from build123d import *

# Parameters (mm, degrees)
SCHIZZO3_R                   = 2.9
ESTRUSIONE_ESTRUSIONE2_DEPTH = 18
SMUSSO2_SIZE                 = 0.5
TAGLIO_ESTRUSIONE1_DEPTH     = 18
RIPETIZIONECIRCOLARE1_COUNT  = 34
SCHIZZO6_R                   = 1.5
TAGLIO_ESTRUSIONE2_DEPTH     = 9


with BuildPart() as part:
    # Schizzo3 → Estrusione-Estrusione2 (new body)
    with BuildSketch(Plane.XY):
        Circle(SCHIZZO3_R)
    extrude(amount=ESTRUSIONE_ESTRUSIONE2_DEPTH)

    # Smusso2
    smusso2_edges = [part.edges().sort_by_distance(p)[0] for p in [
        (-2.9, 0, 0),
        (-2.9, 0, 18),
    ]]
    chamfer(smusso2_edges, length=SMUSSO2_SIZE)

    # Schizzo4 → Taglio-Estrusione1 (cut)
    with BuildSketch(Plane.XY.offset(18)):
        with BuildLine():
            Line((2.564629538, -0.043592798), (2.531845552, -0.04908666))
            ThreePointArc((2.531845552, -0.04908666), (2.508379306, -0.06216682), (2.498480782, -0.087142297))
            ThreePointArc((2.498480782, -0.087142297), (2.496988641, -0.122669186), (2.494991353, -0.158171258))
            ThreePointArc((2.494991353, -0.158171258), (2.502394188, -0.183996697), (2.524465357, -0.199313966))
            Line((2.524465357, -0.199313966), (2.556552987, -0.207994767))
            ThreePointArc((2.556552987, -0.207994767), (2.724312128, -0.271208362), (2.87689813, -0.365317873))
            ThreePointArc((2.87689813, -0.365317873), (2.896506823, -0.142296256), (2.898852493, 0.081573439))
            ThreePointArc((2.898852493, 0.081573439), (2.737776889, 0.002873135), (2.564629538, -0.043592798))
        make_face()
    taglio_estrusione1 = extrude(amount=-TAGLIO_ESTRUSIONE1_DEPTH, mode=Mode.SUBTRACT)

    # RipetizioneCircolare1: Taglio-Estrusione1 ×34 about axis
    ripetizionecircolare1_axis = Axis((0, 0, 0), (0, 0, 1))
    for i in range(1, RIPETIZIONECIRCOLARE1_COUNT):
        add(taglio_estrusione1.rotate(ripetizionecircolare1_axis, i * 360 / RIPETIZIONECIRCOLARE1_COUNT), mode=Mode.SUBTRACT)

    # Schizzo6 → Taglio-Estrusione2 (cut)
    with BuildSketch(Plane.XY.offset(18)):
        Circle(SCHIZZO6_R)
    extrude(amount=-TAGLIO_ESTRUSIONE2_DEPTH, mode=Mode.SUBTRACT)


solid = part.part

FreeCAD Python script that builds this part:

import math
import FreeCAD as App
import Part
import Sketcher
from FreeCAD import Vector


def edges_at(feature, points):
    """Names of the edges that pass closest to the given points."""
    edges = feature.Shape.Edges
    near = lambda p: min(range(len(edges)), key=lambda i: edges[i].distToShape(Part.Vertex(*p))[0])
    return sorted({f"Edge{near(p) + 1}" for p in points})

doc = App.newDocument("Part")
params = doc.addObject("Spreadsheet::Sheet", "Params")
for row, (alias, value) in enumerate([
    ("sketch1_diameter", "5.8 mm"),
    ("pad1_length", "18 mm"),
    ("chamfer_size", "0.5 mm"),
    ("sketch2_radius", "2.9 mm"),
    ("sketch2_radius2", "0.04 mm"),
    ("pocket1_length", "18 mm"),
    ("sketch3_diameter", "3 mm"),
    ("pocket2_length", "9 mm"),
], start=1):
    params.set(f"A{row}", alias)
    params.set(f"B{row}", "=" + value)
    params.setAlias(f"B{row}", alias)

body = doc.addObject("PartDesign::Body", "Body")

sketch1 = body.newObject("Sketcher::SketchObject", "Sketch")
sketch1.AttachmentSupport = (doc.getObject("XY_Plane"), [""])
sketch1.MapMode = "FlatFace"
sketch1.addGeometry(Part.Circle(Vector(0, 0, 0), Vector(0, 0, 1), 2.9), False)
sketch1.addConstraint(Sketcher.Constraint("Coincident", 0, 3, -1, 1))
sketch1.addConstraint(Sketcher.Constraint("Diameter", 0, 5.8))
sketch1.setExpression("Constraints[1]", "Params.sketch1_diameter")
pad1 = body.newObject("PartDesign::Pad", "Pad")
pad1.Profile = sketch1
pad1.setExpression("Length", "Params.pad1_length")
doc.recompute()

chamfer = body.newObject("PartDesign::Chamfer", "Chamfer")
chamfer.Base = (pad1, edges_at(pad1, [(-2.9, 0, 0), (-2.9, 0, 18)]))
chamfer.setExpression("Size", "Params.chamfer_size")

sketch2 = body.newObject("Sketcher::SketchObject", "Sketch001")
sketch2.AttachmentSupport = (doc.getObject("XY_Plane"), [""])
sketch2.MapMode = "FlatFace"
sketch2.AttachmentOffset = App.Placement(Vector(0, 0, 18), App.Rotation())
sketch2.addGeometry(Part.LineSegment(Vector(2.565, -0.044, 0), Vector(2.532, -0.049, 0)), False)
sketch2.addGeometry(Part.ArcOfCircle(Part.Circle(Vector(2.538, -0.089, 0), Vector(0, 0, 1), 0.04), math.radians(100), math.radians(178)), False)
sketch2.addGeometry(Part.ArcOfCircle(Part.Circle(Vector(0, 0, 0), Vector(0, 0, 1), 2.5), math.radians(-3.63), math.radians(-2)), False)
sketch2.addGeometry(Part.ArcOfCircle(Part.Circle(Vector(2.535, -0.161, 0), Vector(0, 0, 1), 0.04), math.radians(176), math.radians(255)), False)
sketch2.addGeometry(Part.LineSegment(Vector(2.524, -0.199, 0), Vector(2.557, -0.208, 0)), False)
sketch2.addGeometry(Part.ArcOfCircle(Part.Circle(Vector(2.313, -1.109, 0), Vector(0, 0, 1), 0.934), math.radians(53), math.radians(75)), False)
sketch2.addGeometry(Part.ArcOfCircle(Part.Circle(Vector(0, 0, 0), Vector(0, 0, 1), 2.9), math.radians(-7.24), math.radians(1.61)), False)
sketch2.addGeometry(Part.ArcOfCircle(Part.Circle(Vector(2.41, 0.877, 0), Vector(0, 0, 1), 0.934), math.radians(-80), math.radians(-58)), False)
sketch2.addConstraint(Sketcher.Constraint("Tangent", 0, 2, 1, 1))
sketch2.addConstraint(Sketcher.Constraint("Tangent", 1, 2, 2, 2))
sketch2.addConstraint(Sketcher.Constraint("Tangent", 2, 1, 3, 1))
sketch2.addConstraint(Sketcher.Constraint("Tangent", 3, 2, 4, 1))
sketch2.addConstraint(Sketcher.Constraint("Tangent", 4, 2, 5, 2))
sketch2.addConstraint(Sketcher.Constraint("Coincident", 5, 1, 6, 1))
sketch2.addConstraint(Sketcher.Constraint("Coincident", 6, 2, 7, 2))
sketch2.addConstraint(Sketcher.Constraint("Tangent", 7, 1, 0, 1))
sketch2.addConstraint(Sketcher.Constraint("Coincident", 2, 3, -1, 1))
sketch2.addConstraint(Sketcher.Constraint("Coincident", 6, 3, -1, 1))
sketch2.addConstraint(Sketcher.Constraint("Equal", 1, 3))
sketch2.addConstraint(Sketcher.Constraint("Equal", 5, 7))
sketch2.addConstraint(Sketcher.Constraint("Equal", 0, 4))
sketch2.addConstraint(Sketcher.Constraint("Radius", 6, 2.9))
sketch2.addConstraint(Sketcher.Constraint("Radius", 1, 0.04))
sketch2.addConstraint(Sketcher.Constraint("Radius", 2, 2.499991))
sketch2.addConstraint(Sketcher.Constraint("Radius", 5, 0.933715))
sketch2.addConstraint(Sketcher.Constraint("DistanceY", 3, 3, -1, 1, 0.160702))
sketch2.addConstraint(Sketcher.Constraint("DistanceX", -1, 1, 5, 1, 2.876898))
sketch2.addConstraint(Sketcher.Constraint("DistanceX", 7, 3, 3, 3, 0.1246))
sketch2.addConstraint(Sketcher.Constraint("Distance", 0, 0.033241))
sketch2.addConstraint(Sketcher.Constraint("DistanceY", -1, 1, 7, 3, 0.877282))
sketch2.setExpression("Constraints[13]", "Params.sketch2_radius")
sketch2.setExpression("Constraints[14]", "Params.sketch2_radius2")
pocket1 = body.newObject("PartDesign::Pocket", "Pocket")
pocket1.Profile = sketch2
pocket1.setExpression("Length", "Params.pocket1_length")
doc.recompute()

polarpattern = body.newObject("PartDesign::PolarPattern", "PolarPattern")
polarpattern.Originals = [pocket1]
polarpattern.Axis = (doc.getObject("Z_Axis"), [""])
polarpattern.Angle = 360
polarpattern.Occurrences = 34
body.Tip = polarpattern

sketch3 = body.newObject("Sketcher::SketchObject", "Sketch002")
sketch3.AttachmentSupport = (doc.getObject("XY_Plane"), [""])
sketch3.MapMode = "FlatFace"
sketch3.AttachmentOffset = App.Placement(Vector(0, 0, 18), App.Rotation())
sketch3.addGeometry(Part.Circle(Vector(0, 0, 0), Vector(0, 0, 1), 1.5), False)
sketch3.addConstraint(Sketcher.Constraint("Coincident", 0, 3, -1, 1))
sketch3.addConstraint(Sketcher.Constraint("Diameter", 0, 3.0))
sketch3.setExpression("Constraints[1]", "Params.sketch3_diameter")
pocket2 = body.newObject("PartDesign::Pocket", "Pocket001")
pocket2.Profile = sketch3
pocket2.setExpression("Length", "Params.pocket2_length")

doc.recompute()
